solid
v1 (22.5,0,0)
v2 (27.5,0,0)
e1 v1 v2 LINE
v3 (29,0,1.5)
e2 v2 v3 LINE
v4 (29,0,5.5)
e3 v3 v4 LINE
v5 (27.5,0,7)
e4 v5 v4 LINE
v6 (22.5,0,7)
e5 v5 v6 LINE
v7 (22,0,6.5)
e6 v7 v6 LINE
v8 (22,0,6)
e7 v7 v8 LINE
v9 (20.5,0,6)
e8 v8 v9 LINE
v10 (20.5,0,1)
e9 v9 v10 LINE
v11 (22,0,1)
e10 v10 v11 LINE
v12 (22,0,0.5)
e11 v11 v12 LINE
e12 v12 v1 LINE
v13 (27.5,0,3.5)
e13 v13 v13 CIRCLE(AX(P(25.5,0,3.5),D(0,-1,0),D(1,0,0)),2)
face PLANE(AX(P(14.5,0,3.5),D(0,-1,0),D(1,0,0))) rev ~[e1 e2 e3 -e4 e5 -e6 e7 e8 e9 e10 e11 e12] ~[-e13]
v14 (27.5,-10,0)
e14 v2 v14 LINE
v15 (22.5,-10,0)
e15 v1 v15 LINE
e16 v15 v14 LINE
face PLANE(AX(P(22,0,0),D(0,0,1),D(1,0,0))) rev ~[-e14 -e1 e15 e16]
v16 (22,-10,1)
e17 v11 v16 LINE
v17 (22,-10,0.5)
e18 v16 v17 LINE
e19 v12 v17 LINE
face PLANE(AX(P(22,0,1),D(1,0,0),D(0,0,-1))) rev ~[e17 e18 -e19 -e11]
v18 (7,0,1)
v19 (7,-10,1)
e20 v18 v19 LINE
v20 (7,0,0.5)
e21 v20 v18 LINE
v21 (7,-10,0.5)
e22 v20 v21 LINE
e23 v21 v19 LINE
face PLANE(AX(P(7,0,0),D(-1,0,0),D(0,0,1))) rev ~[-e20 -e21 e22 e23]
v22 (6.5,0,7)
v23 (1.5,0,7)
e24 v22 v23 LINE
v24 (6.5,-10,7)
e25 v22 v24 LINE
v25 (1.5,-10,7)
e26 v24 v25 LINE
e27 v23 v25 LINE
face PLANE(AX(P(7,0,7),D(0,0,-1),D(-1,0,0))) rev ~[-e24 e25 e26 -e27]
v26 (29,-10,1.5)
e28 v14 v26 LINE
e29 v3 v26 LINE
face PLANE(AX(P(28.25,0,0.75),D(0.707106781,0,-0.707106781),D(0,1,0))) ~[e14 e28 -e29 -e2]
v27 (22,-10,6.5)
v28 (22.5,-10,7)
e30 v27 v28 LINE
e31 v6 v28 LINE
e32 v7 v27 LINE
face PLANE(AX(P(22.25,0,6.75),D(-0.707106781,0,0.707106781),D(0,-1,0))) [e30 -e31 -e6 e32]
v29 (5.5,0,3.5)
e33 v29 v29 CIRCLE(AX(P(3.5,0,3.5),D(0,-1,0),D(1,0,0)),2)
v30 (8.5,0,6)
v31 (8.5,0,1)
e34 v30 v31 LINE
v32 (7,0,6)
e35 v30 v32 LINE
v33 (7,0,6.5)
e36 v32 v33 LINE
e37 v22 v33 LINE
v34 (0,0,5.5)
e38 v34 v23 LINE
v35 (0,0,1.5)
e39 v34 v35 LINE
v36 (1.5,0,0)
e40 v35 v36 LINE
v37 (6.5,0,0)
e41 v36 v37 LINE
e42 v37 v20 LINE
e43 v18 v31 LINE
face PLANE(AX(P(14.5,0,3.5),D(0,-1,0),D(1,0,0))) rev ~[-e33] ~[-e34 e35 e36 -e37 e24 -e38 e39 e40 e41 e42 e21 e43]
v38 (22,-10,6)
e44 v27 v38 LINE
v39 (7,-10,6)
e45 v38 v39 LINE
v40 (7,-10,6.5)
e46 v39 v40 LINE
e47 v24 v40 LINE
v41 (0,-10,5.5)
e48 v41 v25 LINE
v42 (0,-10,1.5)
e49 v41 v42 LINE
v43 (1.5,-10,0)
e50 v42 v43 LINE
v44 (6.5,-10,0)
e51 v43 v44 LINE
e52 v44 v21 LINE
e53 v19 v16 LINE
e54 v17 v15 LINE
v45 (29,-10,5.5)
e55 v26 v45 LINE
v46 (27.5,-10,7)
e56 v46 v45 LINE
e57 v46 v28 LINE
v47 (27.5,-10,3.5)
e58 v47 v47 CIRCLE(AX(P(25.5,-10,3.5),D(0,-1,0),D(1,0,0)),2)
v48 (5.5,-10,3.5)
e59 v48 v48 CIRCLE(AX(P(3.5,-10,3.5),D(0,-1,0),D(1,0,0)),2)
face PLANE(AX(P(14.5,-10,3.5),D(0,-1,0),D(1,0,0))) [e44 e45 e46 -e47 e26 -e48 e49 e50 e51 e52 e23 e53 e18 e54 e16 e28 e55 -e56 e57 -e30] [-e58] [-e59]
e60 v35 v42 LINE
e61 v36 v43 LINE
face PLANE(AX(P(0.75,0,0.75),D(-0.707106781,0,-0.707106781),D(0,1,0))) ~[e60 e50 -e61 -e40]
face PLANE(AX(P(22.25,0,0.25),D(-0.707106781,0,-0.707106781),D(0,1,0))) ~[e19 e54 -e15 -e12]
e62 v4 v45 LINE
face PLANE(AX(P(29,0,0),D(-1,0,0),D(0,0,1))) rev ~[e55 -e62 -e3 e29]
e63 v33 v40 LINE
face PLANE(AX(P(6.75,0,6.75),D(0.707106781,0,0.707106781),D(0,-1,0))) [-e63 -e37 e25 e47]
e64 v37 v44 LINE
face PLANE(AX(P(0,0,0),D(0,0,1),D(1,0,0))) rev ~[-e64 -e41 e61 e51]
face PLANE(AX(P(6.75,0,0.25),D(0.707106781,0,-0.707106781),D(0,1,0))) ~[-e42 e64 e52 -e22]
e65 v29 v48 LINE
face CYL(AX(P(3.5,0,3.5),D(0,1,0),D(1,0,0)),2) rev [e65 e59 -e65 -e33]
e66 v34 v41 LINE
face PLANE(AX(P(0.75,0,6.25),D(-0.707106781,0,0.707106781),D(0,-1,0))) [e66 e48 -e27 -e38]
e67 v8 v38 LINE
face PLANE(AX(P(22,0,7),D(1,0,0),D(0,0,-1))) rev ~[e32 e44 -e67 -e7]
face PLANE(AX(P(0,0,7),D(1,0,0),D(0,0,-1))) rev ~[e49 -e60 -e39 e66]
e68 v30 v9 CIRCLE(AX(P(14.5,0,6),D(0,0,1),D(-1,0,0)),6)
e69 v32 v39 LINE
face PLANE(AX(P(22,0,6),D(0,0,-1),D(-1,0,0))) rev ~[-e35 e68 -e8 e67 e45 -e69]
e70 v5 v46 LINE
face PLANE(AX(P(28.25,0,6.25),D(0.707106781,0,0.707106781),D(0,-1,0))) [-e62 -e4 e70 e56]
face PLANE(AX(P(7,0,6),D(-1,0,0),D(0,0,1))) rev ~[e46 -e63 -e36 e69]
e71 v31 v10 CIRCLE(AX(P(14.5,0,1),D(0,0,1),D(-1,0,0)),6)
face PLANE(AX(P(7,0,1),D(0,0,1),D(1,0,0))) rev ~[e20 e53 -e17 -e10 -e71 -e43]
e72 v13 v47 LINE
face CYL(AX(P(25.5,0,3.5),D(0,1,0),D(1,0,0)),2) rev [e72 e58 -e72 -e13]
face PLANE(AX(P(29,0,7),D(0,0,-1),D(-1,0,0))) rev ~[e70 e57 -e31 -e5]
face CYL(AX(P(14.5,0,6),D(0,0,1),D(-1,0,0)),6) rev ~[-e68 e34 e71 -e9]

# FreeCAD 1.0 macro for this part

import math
import FreeCAD as App
import Part
import Sketcher

V = App.Vector


def edges_at(feature, points):
    """Names of the edges that pass closest to the given points."""
    edges = feature.Shape.Edges
    near = lambda p: min(range(len(edges)), key=lambda i: edges[i].distToShape(Part.Vertex(*p))[0])
    return sorted({f"Edge{near(p) + 1}" for p in points})

doc = App.newDocument("Part")
body = doc.addObject("PartDesign::Body", "Body")

sketch1 = body.newObject("Sketcher::SketchObject", "Sketch")
sketch1.AttachmentSupport = (doc.getObject("XZ_Plane"), [""])
sketch1.MapMode = "FlatFace"
sketch1.addGeometry(Part.LineSegment(V(0, 7, 0), V(0, 0, 0)), False)
sketch1.addGeometry(Part.LineSegment(V(0, 0, 0), V(7, 0, 0)), False)
sketch1.addGeometry(Part.LineSegment(V(7, 0, 0), V(7, 1, 0)), False)
sketch1.addGeometry(Part.LineSegment(V(7, 1, 0), V(22, 1, 0)), False)
sketch1.addGeometry(Part.LineSegment(V(22, 1, 0), V(22, 0, 0)), False)
sketch1.addGeometry(Part.LineSegment(V(22, 0, 0), V(29, 0, 0)), False)
sketch1.addGeometry(Part.LineSegment(V(29, 0, 0), V(29, 7, 0)), False)
sketch1.addGeometry(Part.LineSegment(V(29, 7, 0), V(22, 7, 0)), False)
sketch1.addGeometry(Part.LineSegment(V(22, 7, 0), V(22, 6, 0)), False)
sketch1.addGeometry(Part.LineSegment(V(22, 6, 0), V(7, 6, 0)), False)
sketch1.addGeometry(Part.LineSegment(V(7, 6, 0), V(7, 7, 0)), False)
sketch1.addGeometry(Part.LineSegment(V(7, 7, 0), V(0, 7, 0)), False)
sketch1.addGeometry(Part.Circle(V(3.5, 3.5, 0), V(0, 0, 1), 2), False)
sketch1.addGeometry(Part.Circle(V(25.5, 3.5, 0), V(0, 0, 1), 2), False)
sketch1.addConstraint(Sketcher.Constraint("Coincident", 0, 2, 1, 1))
sketch1.addConstraint(Sketcher.Constraint("Coincident", 1, 2, 2, 1))
sketch1.addConstraint(Sketcher.Constraint("Coincident", 2, 2, 3, 1))
sketch1.addConstraint(Sketcher.Constraint("Coincident", 3, 2, 4, 1))
sketch1.addConstraint(Sketcher.Constraint("Coincident", 4, 2, 5, 1))
sketch1.addConstraint(Sketcher.Constraint("Coincident", 5, 2, 6, 1))
sketch1.addConstraint(Sketcher.Constraint("Coincident", 6, 2, 7, 1))
sketch1.addConstraint(Sketcher.Constraint("Coincident", 7, 2, 8, 1))
sketch1.addConstraint(Sketcher.Constraint("Coincident", 8, 2, 9, 1))
sketch1.addConstraint(Sketcher.Constraint("Coincident", 9, 2, 10, 1))
sketch1.addConstraint(Sketcher.Constraint("Coincident", 10, 2, 11, 1))
sketch1.addConstraint(Sketcher.Constraint("Coincident", 11, 2, 0, 1))
sketch1.addConstraint(Sketcher.Constraint("Vertical", 0))
sketch1.addConstraint(Sketcher.Constraint("Horizontal", 1))
sketch1.addConstraint(Sketcher.Constraint("Vertical", 2))
sketch1.addConstraint(Sketcher.Constraint("Horizontal", 3))
sketch1.addConstraint(Sketcher.Constraint("Vertical", 4))
sketch1.addConstraint(Sketcher.Constraint("Horizontal", 5))
sketch1.addConstraint(Sketcher.Constraint("Vertical", 6))
sketch1.addConstraint(Sketcher.Constraint("Horizontal", 7))
sketch1.addConstraint(Sketcher.Constraint("Vertical", 8))
sketch1.addConstraint(Sketcher.Constraint("Horizontal", 9))
sketch1.addConstraint(Sketcher.Constraint("Vertical", 10))
sketch1.addConstraint(Sketcher.Constraint("Horizontal", 11))
sketch1.addConstraint(Sketcher.Constraint("Coincident", 0, 2, -1, 1))
sketch1.addConstraint(Sketcher.Constraint("Equal", 12, 13))
sketch1.addConstraint(Sketcher.Constraint("PointOnObject", 4, 2, -1))
sketch1.addConstraint(Sketcher.Constraint("Horizontal", 12, 3, 13, 3))
sketch1.addConstraint(Sketcher.Constraint("Horizontal", 7, 2, 10, 2))
sketch1.addConstraint(Sketcher.Constraint("Vertical", 4, 2, 7, 2))
sketch1.addConstraint(Sketcher.Constraint("Vertical", 2, 2, 9, 2))
sketch1.addConstraint(Sketcher.Constraint("Equal", 1, 5))
sketch1.addConstraint(Sketcher.Constraint("Equal", 11, 0))
sketch1.addConstraint(Sketcher.Constraint("Equal", 4, 8))
sketch1.addConstraint(Sketcher.Constraint("Diameter", 12, 4.0))
sketch1.addConstraint(Sketcher.Constraint("DistanceX", 1, 1, 1, 2, 7.0))
sketch1.addConstraint(Sketcher.Constraint("DistanceX", 3, 1, 3, 2, 15.0))
sketch1.addConstraint(Sketcher.Constraint("DistanceY", 2, 1, 2, 2, 1.0))
sketch1.addConstraint(Sketcher.Constraint("DistanceX", 12, 3, 13, 3, 22.0))
sketch1.addConstraint(Sketcher.Constraint("DistanceX", -1, 1, 12, 3, 3.5))
sketch1.addConstraint(Sketcher.Constraint("DistanceY", -1, 1, 12, 3, 3.5))
pad1 = body.newObject("PartDesign::Pad", "Pad")
pad1.Profile = sketch1
pad1.Length = 10

sketch2 = body.newObject("Sketcher::SketchObject", "Sketch001")
sketch2.AttachmentSupport = (doc.getObject("XY_Plane"), [""])
sketch2.MapMode = "FlatFace"
sketch2.AttachmentOffset = App.Placement(V(0, 0, 6), App.Rotation())
sketch2.addGeometry(Part.ArcOfCircle(Part.Circle(V(14, 0, 0), V(0, 0, 1), 6), math.radians(180), math.radians(360)), False)
sketch2.addGeometry(Part.LineSegment(V(20, 0, 0), V(8, 0, 0)), False)
sketch2.addConstraint(Sketcher.Constraint("Coincident", 0, 1, 1, 2))
sketch2.addConstraint(Sketcher.Constraint("Coincident", 1, 1, 0, 2))
sketch2.addConstraint(Sketcher.Constraint("Horizontal", 1))
sketch2.addConstraint(Sketcher.Constraint("PointOnObject", 0, 3, -1))
sketch2.addConstraint(Sketcher.Constraint("PointOnObject", 0, 1, -1))
sketch2.addConstraint(Sketcher.Constraint("Radius", 0, 6.0))
sketch2.addConstraint(Sketcher.Constraint("DistanceX", -1, 1, 0, 3, 14.5))
pocket1 = body.newObject("PartDesign::Pocket", "Pocket")
pocket1.Profile = sketch2
pocket1.Type = "ThroughAll"
doc.recompute()

chamfer = body.newObject("PartDesign::Chamfer", "Chamfer")
chamfer.Base = (pocket1, edges_at(pocket1, [
    (0, -5, 0),
    (0, -5, 7),
    (29, -5, 0),
    (29, -5, 7),
]))
chamfer.Size = 1.5
doc.recompute()

chamfer2 = body.newObject("PartDesign::Chamfer", "Chamfer001")
chamfer2.Base = (chamfer, edges_at(chamfer, [
    (7, -5, 7),
    (22, -5, 7),
    (7, -5, 0),
    (22, -5, 0),
]))
chamfer2.Size = 0.5

doc.recompute()
